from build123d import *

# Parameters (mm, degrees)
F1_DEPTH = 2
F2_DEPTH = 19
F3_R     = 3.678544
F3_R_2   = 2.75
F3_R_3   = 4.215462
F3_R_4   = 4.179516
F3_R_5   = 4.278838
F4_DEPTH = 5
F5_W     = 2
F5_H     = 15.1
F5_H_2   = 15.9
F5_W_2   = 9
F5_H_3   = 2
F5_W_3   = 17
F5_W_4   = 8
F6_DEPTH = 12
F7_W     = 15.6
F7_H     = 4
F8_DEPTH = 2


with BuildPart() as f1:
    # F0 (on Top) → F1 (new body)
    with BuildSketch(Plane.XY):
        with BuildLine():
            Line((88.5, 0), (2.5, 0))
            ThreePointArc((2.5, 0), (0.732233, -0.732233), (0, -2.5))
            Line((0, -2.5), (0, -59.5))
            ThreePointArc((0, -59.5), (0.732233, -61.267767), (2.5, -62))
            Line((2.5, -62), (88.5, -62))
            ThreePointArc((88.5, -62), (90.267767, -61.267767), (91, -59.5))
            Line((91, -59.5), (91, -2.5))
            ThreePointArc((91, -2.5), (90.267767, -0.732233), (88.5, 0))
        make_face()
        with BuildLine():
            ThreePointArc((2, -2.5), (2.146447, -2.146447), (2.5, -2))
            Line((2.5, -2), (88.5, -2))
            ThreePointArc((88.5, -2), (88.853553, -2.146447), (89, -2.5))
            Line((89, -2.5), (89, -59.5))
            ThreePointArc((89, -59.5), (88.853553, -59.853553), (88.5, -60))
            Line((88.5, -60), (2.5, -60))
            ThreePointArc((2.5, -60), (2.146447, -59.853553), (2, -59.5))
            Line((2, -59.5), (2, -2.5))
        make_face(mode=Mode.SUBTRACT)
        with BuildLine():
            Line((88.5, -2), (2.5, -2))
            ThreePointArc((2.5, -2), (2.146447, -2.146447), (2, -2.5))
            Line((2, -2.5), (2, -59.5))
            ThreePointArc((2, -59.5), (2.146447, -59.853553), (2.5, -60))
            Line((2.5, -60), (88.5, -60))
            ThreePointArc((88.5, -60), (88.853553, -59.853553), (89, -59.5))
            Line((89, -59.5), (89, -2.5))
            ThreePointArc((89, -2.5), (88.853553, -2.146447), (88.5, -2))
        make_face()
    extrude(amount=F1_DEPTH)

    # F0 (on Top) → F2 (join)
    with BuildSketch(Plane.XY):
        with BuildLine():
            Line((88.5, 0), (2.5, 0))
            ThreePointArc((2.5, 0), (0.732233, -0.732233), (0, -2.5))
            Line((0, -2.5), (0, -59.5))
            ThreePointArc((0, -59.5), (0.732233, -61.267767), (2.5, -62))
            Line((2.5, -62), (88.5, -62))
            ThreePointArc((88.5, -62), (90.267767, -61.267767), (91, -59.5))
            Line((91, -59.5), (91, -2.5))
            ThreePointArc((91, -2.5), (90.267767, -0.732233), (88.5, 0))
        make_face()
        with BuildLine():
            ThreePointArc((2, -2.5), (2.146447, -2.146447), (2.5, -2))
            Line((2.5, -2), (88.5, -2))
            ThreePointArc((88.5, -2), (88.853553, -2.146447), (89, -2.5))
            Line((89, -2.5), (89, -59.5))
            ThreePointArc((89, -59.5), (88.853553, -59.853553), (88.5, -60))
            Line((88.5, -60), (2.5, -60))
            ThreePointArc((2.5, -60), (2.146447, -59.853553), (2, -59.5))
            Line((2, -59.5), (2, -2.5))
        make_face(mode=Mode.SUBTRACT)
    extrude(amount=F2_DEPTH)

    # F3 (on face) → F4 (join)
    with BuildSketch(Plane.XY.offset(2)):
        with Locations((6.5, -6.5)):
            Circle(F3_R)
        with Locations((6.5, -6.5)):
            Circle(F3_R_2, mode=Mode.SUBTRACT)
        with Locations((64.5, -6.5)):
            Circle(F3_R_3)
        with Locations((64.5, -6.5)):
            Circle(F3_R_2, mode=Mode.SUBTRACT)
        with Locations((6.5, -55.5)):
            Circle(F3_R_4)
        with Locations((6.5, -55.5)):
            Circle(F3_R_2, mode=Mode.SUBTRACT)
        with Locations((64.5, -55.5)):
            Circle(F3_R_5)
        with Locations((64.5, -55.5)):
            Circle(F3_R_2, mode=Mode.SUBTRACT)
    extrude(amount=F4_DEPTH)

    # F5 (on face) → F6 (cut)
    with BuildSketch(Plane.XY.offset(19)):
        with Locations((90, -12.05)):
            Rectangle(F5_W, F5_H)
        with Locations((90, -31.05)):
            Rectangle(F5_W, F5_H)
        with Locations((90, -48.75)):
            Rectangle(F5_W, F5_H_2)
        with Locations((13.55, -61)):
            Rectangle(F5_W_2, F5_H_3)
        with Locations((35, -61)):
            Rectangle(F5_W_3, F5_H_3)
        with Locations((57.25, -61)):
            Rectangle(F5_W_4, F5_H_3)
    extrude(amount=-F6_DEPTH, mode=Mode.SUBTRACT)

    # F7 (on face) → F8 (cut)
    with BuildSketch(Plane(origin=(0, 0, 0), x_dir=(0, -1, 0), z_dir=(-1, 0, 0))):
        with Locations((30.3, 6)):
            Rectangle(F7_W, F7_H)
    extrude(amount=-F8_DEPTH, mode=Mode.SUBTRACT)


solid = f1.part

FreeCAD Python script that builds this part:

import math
import FreeCAD as App
import Part
import Sketcher
Q = App.Units.Quantity

doc = App.newDocument("Part")
body = doc.addObject("PartDesign::Body", "Body")

# Sketch on XY plane
sketch1 = body.newObject("Sketcher::SketchObject", "Sketch")
sketch1.AttachmentSupport = (doc.getObject("XY_Plane"), [""])
sketch1.MapMode = "FlatFace"
sketch1.addGeometry([
    Part.LineSegment(App.Vector(88.5, 0, 0), App.Vector(2.5, 0, 0)),  # 0
    Part.ArcOfCircle(Part.Circle(App.Vector(2.5, -2.5, 0), App.Vector(0, 0, 1), 2.5), math.radians(89.999996), math.radians(180.000004)),  # 1
    Part.LineSegment(App.Vector(0, -2.5, 0), App.Vector(0, -59.5, 0)),  # 2
    Part.ArcOfCircle(Part.Circle(App.Vector(2.5, -59.5, 0), App.Vector(0, 0, 1), 2.5), math.radians(179.999996), math.radians(270.000004)),  # 3
    Part.LineSegment(App.Vector(2.5, -62, 0), App.Vector(88.5, -62, 0)),  # 4
    Part.ArcOfCircle(Part.Circle(App.Vector(88.5, -59.5, 0), App.Vector(0, 0, 1), 2.5), math.radians(-90.000004), math.radians(0.000004)),  # 5
    Part.LineSegment(App.Vector(91, -59.5, 0), App.Vector(91, -2.5, 0)),  # 6
    Part.ArcOfCircle(Part.Circle(App.Vector(88.5, -2.5, 0), App.Vector(0, 0, 1), 2.5), math.radians(-0.000004), math.radians(90.000004)),  # 7
], False)
sketch1.addConstraint([
    Sketcher.Constraint("Tangent", 0, 2, 1, 1),
    Sketcher.Constraint("Tangent", 1, 2, 2, 1),
    Sketcher.Constraint("Tangent", 2, 2, 3, 1),
    Sketcher.Constraint("Tangent", 3, 2, 4, 1),
    Sketcher.Constraint("Tangent", 4, 2, 5, 1),
    Sketcher.Constraint("Tangent", 5, 2, 6, 1),
    Sketcher.Constraint("Tangent", 6, 2, 7, 1),
    Sketcher.Constraint("Tangent", 7, 2, 0, 1),
    Sketcher.Constraint("Horizontal", 0),
    Sketcher.Constraint("Vertical", 2),
    Sketcher.Constraint("Horizontal", 4),
    Sketcher.Constraint("Vertical", 6),
    Sketcher.Constraint("Equal", 1, 3),
    Sketcher.Constraint("Equal", 3, 5),
    Sketcher.Constraint("Equal", 5, 7),
    Sketcher.Constraint("PointOnObject", 0, 2, -1),
    Sketcher.Constraint("PointOnObject", 1, 2, -2),
    Sketcher.Constraint("Radius", 1, Q("2.5 mm")),
    Sketcher.Constraint("DistanceX", 0, 2, 0, 1, Q("86 mm")),
    Sketcher.Constraint("DistanceY", 2, 2, 2, 1, Q("57 mm")),
])
pad1 = body.newObject("PartDesign::Pad", "Pad")
pad1.Profile = sketch1
pad1.Length = 2

# Sketch on XY plane
sketch2 = body.newObject("Sketcher::SketchObject", "Sketch001")
sketch2.AttachmentSupport = (doc.getObject("XY_Plane"), [""])
sketch2.MapMode = "FlatFace"
sketch2.addGeometry([
    Part.LineSegment(App.Vector(88.5, 0, 0), App.Vector(2.5, 0, 0)),  # 0
    Part.ArcOfCircle(Part.Circle(App.Vector(2.5, -2.5, 0), App.Vector(0, 0, 1), 2.5), math.radians(89.999996), math.radians(180.000004)),  # 1
    Part.LineSegment(App.Vector(0, -2.5, 0), App.Vector(0, -59.5, 0)),  # 2
    Part.ArcOfCircle(Part.Circle(App.Vector(2.5, -59.5, 0), App.Vector(0, 0, 1), 2.5), math.radians(179.999996), math.radians(270.000004)),  # 3
    Part.LineSegment(App.Vector(2.5, -62, 0), App.Vector(88.5, -62, 0)),  # 4
    Part.ArcOfCircle(Part.Circle(App.Vector(88.5, -59.5, 0), App.Vector(0, 0, 1), 2.5), math.radians(-90.000004), math.radians(0.000004)),  # 5
    Part.LineSegment(App.Vector(91, -59.5, 0), App.Vector(91, -2.5, 0)),  # 6
    Part.ArcOfCircle(Part.Circle(App.Vector(88.5, -2.5, 0), App.Vector(0, 0, 1), 2.5), math.radians(-0.000004), math.radians(90.000004)),  # 7
    Part.LineSegment(App.Vector(2, -59.5, 0), App.Vector(2, -2.5, 0)),  # 8
    Part.ArcOfCircle(Part.Circle(App.Vector(2.500001, -2.500001, 0), App.Vector(0, 0, 1), 0.500001), math.radians(90.000153), math.radians(179.999847)),  # 9
    Part.LineSegment(App.Vector(2.5, -2, 0), App.Vector(88.5, -2, 0)),  # 10
    Part.ArcOfCircle(Part.Circle(App.Vector(88.499999, -2.500001, 0), App.Vector(0, 0, 1), 0.500001), math.radians(0.000153), math.radians(89.999847)),  # 11
    Part.LineSegment(App.Vector(89, -2.5, 0), App.Vector(89, -59.5, 0)),  # 12
    Part.ArcOfCircle(Part.Circle(App.Vector(88.499999, -59.499999, 0), App.Vector(0, 0, 1), 0.500001), math.radians(-89.999847), math.radians(-0.000153)),  # 13
    Part.LineSegment(App.Vector(88.5, -60, 0), App.Vector(2.5, -60, 0)),  # 14
    Part.ArcOfCircle(Part.Circle(App.Vector(2.500001, -59.499999, 0), App.Vector(0, 0, 1), 0.500001), math.radians(-179.999847), math.radians(-90.000153)),  # 15
], False)
sketch2.addConstraint([
    Sketcher.Constraint("Tangent", 0, 2, 1, 1),
    Sketcher.Constraint("Tangent", 1, 2, 2, 1),
    Sketcher.Constraint("Tangent", 2, 2, 3, 1),
    Sketcher.Constraint("Tangent", 3, 2, 4, 1),
    Sketcher.Constraint("Tangent", 4, 2, 5, 1),
    Sketcher.Constraint("Tangent", 5, 2, 6, 1),
    Sketcher.Constraint("Tangent", 6, 2, 7, 1),
    Sketcher.Constraint("Tangent", 7, 2, 0, 1),
    Sketcher.Constraint("Coincident", 8, 2, 9, 2),
    Sketcher.Constraint("Coincident", 9, 1, 10, 1),
    Sketcher.Constraint("Coincident", 10, 2, 11, 2),
    Sketcher.Constraint("Coincident", 11, 1, 12, 1),
    Sketcher.Constraint("Coincident", 12, 2, 13, 2),
    Sketcher.Constraint("Coincident", 13, 1, 14, 1),
    Sketcher.Constraint("Coincident", 14, 2, 15, 2),
    Sketcher.Constraint("Coincident", 15, 1, 8, 1),
    Sketcher.Constraint("Horizontal", 0),
    Sketcher.Constraint("Vertical", 2),
    Sketcher.Constraint("Horizontal", 4),
    Sketcher.Constraint("Vertical", 6),
    Sketcher.Constraint("Vertical", 8),
    Sketcher.Constraint("Horizontal", 10),
    Sketcher.Constraint("Vertical", 12),
    Sketcher.Constraint("Horizontal", 14),
    Sketcher.Constraint("Coincident", 9, 3, 1, 3),
    Sketcher.Constraint("Coincident", 11, 3, 7, 3),
    Sketcher.Constraint("Coincident", 13, 3, 5, 3),
    Sketcher.Constraint("Equal", 1, 3),
    Sketcher.Constraint("Equal", 3, 5),
    Sketcher.Constraint("Equal", 5, 7),
    Sketcher.Constraint("Equal", 13, 15),
    Sketcher.Constraint("PointOnObject", 0, 2, -1),
    Sketcher.Constraint("PointOnObject", 1, 2, -2),
    Sketcher.Constraint("Horizontal", 6, 2, 8, 2),
    Sketcher.Constraint("Horizontal", 8, 2, 11, 1),
    Sketcher.Constraint("Horizontal", 5, 2, 12, 2),
    Sketcher.Constraint("Horizontal", 12, 2, 15, 1),
    Sketcher.Constraint("Vertical", 3, 2, 9, 1),
    Sketcher.Constraint("Vertical", 7, 2, 10, 2),
    Sketcher.Constraint("Vertical", 10, 2, 13, 1),
    Sketcher.Constraint("Vertical", 9, 1, 14, 2),
    Sketcher.Constraint("Radius", 1, Q("2.5 mm")),
    Sketcher.Constraint("Radius", 9, Q("0.500001 mm")),
    Sketcher.Constraint("DistanceX", 0, 2, 0, 1, Q("86 mm")),
    Sketcher.Constraint("DistanceY", 2, 2, 2, 1, Q("57 mm")),
])
pad2 = body.newObject("PartDesign::Pad", "Pad001")
pad2.Profile = sketch2
pad2.Length = 19

# Sketch on XY plane
sketch3 = body.newObject("Sketcher::SketchObject", "Sketch002")
sketch3.AttachmentSupport = (doc.getObject("XY_Plane"), [""])
sketch3.MapMode = "FlatFace"
sketch3.AttachmentOffset = App.Placement(App.Vector(0, 0, 2), App.Rotation())
sketch3.addGeometry([
    Part.Circle(App.Vector(6.5, -6.5, 0), App.Vector(0, 0, 1), 3.678544),  # 0
    Part.Circle(App.Vector(6.5, -6.5, 0), App.Vector(0, 0, 1), 2.75),  # 1
    Part.Circle(App.Vector(64.5, -6.5, 0), App.Vector(0, 0, 1), 4.215462),  # 2
    Part.Circle(App.Vector(64.5, -6.5, 0), App.Vector(0, 0, 1), 2.75),  # 3
    Part.Circle(App.Vector(6.5, -55.5, 0), App.Vector(0, 0, 1), 4.179516),  # 4
    Part.Circle(App.Vector(6.5, -55.5, 0), App.Vector(0, 0, 1), 2.75),  # 5
    Part.Circle(App.Vector(64.5, -55.5, 0), App.Vector(0, 0, 1), 4.278838),  # 6
    Part.Circle(App.Vector(64.5, -55.5, 0), App.Vector(0, 0, 1), 2.75),  # 7
], False)
sketch3.addConstraint([
    Sketcher.Constraint("Coincident", 1, 3, 0, 3),
    Sketcher.Constraint("Coincident", 3, 3, 2, 3),
    Sketcher.Constraint("Coincident", 5, 3, 4, 3),
    Sketcher.Constraint("Coincident", 7, 3, 6, 3),
    Sketcher.Constraint("Equal", 1, 3),
    Sketcher.Constraint("Equal", 3, 5),
    Sketcher.Constraint("Equal", 5, 7),
    Sketcher.Constraint("Horizontal", 1, 3, 2, 3),
    Sketcher.Constraint("Horizontal", 5, 3, 6, 3),
    Sketcher.Constraint("Vertical", 1, 3, 4, 3),
    Sketcher.Constraint("Vertical", 3, 3, 6, 3),
    Sketcher.Constraint("Diameter", 1, Q("5.5 mm")),
    Sketcher.Constraint("DistanceX", 0, 3, 2, 3, Q("58 mm")),
    Sketcher.Constraint("DistanceY", 4, 3, 0, 3, Q("49 mm")),
    Sketcher.Constraint("DistanceX", -1, 1, 0, 3, Q("6.5 mm")),
    Sketcher.Constraint("DistanceY", 0, 3, -1, 1, Q("6.5 mm")),
    Sketcher.Constraint("Diameter", 4, Q("8.359032 mm")),
    Sketcher.Constraint("Diameter", 0, Q("7.357088 mm")),
    Sketcher.Constraint("Diameter", 2, Q("8.430924 mm")),
    Sketcher.Constraint("Diameter", 6, Q("8.557676 mm")),
])
pad3 = body.newObject("PartDesign::Pad", "Pad002")
pad3.Profile = sketch3
pad3.Length = 5

# Sketch on XY plane
sketch4 = body.newObject("Sketcher::SketchObject", "Sketch003")
sketch4.AttachmentSupport = (doc.getObject("XY_Plane"), [""])
sketch4.MapMode = "FlatFace"
sketch4.AttachmentOffset = App.Placement(App.Vector(0, 0, 19), App.Rotation())
sketch4.addGeometry([
    Part.LineSegment(App.Vector(89, -4.5, 0), App.Vector(89, -19.6, 0)),  # 0
    Part.LineSegment(App.Vector(89, -19.6, 0), App.Vector(91, -19.6, 0)),  # 1
    Part.LineSegment(App.Vector(91, -19.6, 0), App.Vector(91, -4.5, 0)),  # 2
    Part.LineSegment(App.Vector(91, -4.5, 0), App.Vector(89, -4.5, 0)),  # 3
    Part.LineSegment(App.Vector(89, -23.5, 0), App.Vector(89, -38.6, 0)),  # 4
    Part.LineSegment(App.Vector(89, -38.6, 0), App.Vector(91, -38.6, 0)),  # 5
    Part.LineSegment(App.Vector(91, -38.6, 0), App.Vector(91, -23.5, 0)),  # 6
    Part.LineSegment(App.Vector(91, -23.5, 0), App.Vector(89, -23.5, 0)),  # 7
    Part.LineSegment(App.Vector(89, -40.8, 0), App.Vector(89, -56.7, 0)),  # 8
    Part.LineSegment(App.Vector(89, -56.7, 0), App.Vector(91, -56.7, 0)),  # 9
    Part.LineSegment(App.Vector(91, -56.7, 0), App.Vector(91, -40.8, 0)),  # 10
    Part.LineSegment(App.Vector(91, -40.8, 0), App.Vector(89, -40.8, 0)),  # 11
    Part.LineSegment(App.Vector(9.05, -60, 0), App.Vector(9.05, -62, 0)),  # 12
    Part.LineSegment(App.Vector(9.05, -62, 0), App.Vector(18.05, -62, 0)),  # 13
    Part.LineSegment(App.Vector(18.05, -62, 0), App.Vector(18.05, -60, 0)),  # 14
    Part.LineSegment(App.Vector(18.05, -60, 0), App.Vector(9.05, -60, 0)),  # 15
    Part.LineSegment(App.Vector(26.5, -60, 0), App.Vector(26.5, -62, 0)),  # 16
    Part.LineSegment(App.Vector(26.5, -62, 0), App.Vector(43.5, -62, 0)),  # 17
    Part.LineSegment(App.Vector(43.5, -62, 0), App.Vector(43.5, -60, 0)),  # 18
    Part.LineSegment(App.Vector(43.5, -60, 0), App.Vector(26.5, -60, 0)),  # 19
    Part.LineSegment(App.Vector(53.25, -60, 0), App.Vector(53.25, -62, 0)),  # 20
    Part.LineSegment(App.Vector(53.25, -62, 0), App.Vector(61.25, -62, 0)),  # 21
    Part.LineSegment(App.Vector(61.25, -62, 0), App.Vector(61.25, -60, 0)),  # 22
    Part.LineSegment(App.Vector(61.25, -60, 0), App.Vector(53.25, -60, 0)),  # 23
], False)
sketch4.addConstraint([
    Sketcher.Constraint("Coincident", 0, 2, 1, 1),
    Sketcher.Constraint("Coincident", 1, 2, 2, 1),
    Sketcher.Constraint("Coincident", 2, 2, 3, 1),
    Sketcher.Constraint("Coincident", 3, 2, 0, 1),
    Sketcher.Constraint("Coincident", 4, 2, 5, 1),
    Sketcher.Constraint("Coincident", 5, 2, 6, 1),
    Sketcher.Constraint("Coincident", 6, 2, 7, 1),
    Sketcher.Constraint("Coincident", 7, 2, 4, 1),
    Sketcher.Constraint("Coincident", 8, 2, 9, 1),
    Sketcher.Constraint("Coincident", 9, 2, 10, 1),
    Sketcher.Constraint("Coincident", 10, 2, 11, 1),
    Sketcher.Constraint("Coincident", 11, 2, 8, 1),
    Sketcher.Constraint("Coincident", 12, 2, 13, 1),
    Sketcher.Constraint("Coincident", 13, 2, 14, 1),
    Sketcher.Constraint("Coincident", 14, 2, 15, 1),
    Sketcher.Constraint("Coincident", 15, 2, 12, 1),
    Sketcher.Constraint("Coincident", 16, 2, 17, 1),
    Sketcher.Constraint("Coincident", 17, 2, 18, 1),
    Sketcher.Constraint("Coincident", 18, 2, 19, 1),
    Sketcher.Constraint("Coincident", 19, 2, 16, 1),
    Sketcher.Constraint("Coincident", 20, 2, 21, 1),
    Sketcher.Constraint("Coincident", 21, 2, 22, 1),
    Sketcher.Constraint("Coincident", 22, 2, 23, 1),
    Sketcher.Constraint("Coincident", 23, 2, 20, 1),
    Sketcher.Constraint("Vertical", 0),
    Sketcher.Constraint("Horizontal", 1),
    Sketcher.Constraint("Vertical", 2),
    Sketcher.Constraint("Horizontal", 3),
    Sketcher.Constraint("Vertical", 4),
    Sketcher.Constraint("Horizontal", 5),
    Sketcher.Constraint("Vertical", 6),
    Sketcher.Constraint("Horizontal", 7),
    Sketcher.Constraint("Vertical", 8),
    Sketcher.Constraint("Horizontal", 9),
    Sketcher.Constraint("Vertical", 10),
    Sketcher.Constraint("Horizontal", 11),
    Sketcher.Constraint("Vertical", 12),
    Sketcher.Constraint("Horizontal", 13),
    Sketcher.Constraint("Vertical", 14),
    Sketcher.Constraint("Horizontal", 15),
    Sketcher.Constraint("Vertical", 16),
    Sketcher.Constraint("Horizontal", 17),
    Sketcher.Constraint("Vertical", 18),
    Sketcher.Constraint("Horizontal", 19),
    Sketcher.Constraint("Vertical", 20),
    Sketcher.Constraint("Horizontal", 21),
    Sketcher.Constraint("Vertical", 22),
    Sketcher.Constraint("Horizontal", 23),
    Sketcher.Constraint("Horizontal", 13, 2, 16, 2),
    Sketcher.Constraint("Horizontal", 15, 2, 18, 2),
    Sketcher.Constraint("Horizontal", 17, 2, 20, 2),
    Sketcher.Constraint("Horizontal", 19, 2, 22, 2),
    Sketcher.Constraint("Vertical", 3, 2, 4, 2),
    Sketcher.Constraint("Vertical", 2, 2, 5, 2),
    Sketcher.Constraint("Vertical", 7, 2, 8, 2),
    Sketcher.Constraint("Vertical", 6, 2, 9, 2),
    Sketcher.Constraint("Equal", 2, 4),
    Sketcher.Constraint("Equal", 11, 12),
    Sketcher.Constraint("DistanceX", 1, 1, 1, 2, Q("2 mm")),
    Sketcher.Constraint("DistanceX", 13, 1, 13, 2, Q("9 mm")),
    Sketcher.Constraint("DistanceX", 17, 1, 17, 2, Q("17 mm")),
    Sketcher.Constraint("DistanceX", 21, 1, 21, 2, Q("8 mm")),
    Sketcher.Constraint("DistanceY", 0, 2, 0, 1, Q("15.1 mm")),
    Sketcher.Constraint("DistanceY", 8, 2, 8, 1, Q("15.9 mm")),
    Sketcher.Constraint("DistanceX", -1, 1, 0, 2, Q("89 mm")),
    Sketcher.Constraint("DistanceY", 12, 2, -1, 1, Q("62 mm")),
    Sketcher.Constraint("DistanceY", 4, 2, 0, 2, Q("19 mm")),
    Sketcher.Constraint("DistanceY", 0, 2, -1, 1, Q("19.6 mm")),
    Sketcher.Constraint("DistanceY", 8, 2, -1, 1, Q("56.7 mm")),
    Sketcher.Constraint("DistanceX", -1, 1, 16, 2, Q("26.5 mm")),
    Sketcher.Constraint("DistanceX", 13, 2, 20, 2, Q("35.2 mm")),
    Sketcher.Constraint("DistanceX", -1, 1, 12, 2, Q("9.05 mm")),
])
pocket1 = body.newObject("PartDesign::Pocket", "Pocket")
pocket1.Profile = sketch4
pocket1.Length = 12

# Sketch on YZ plane
sketch5 = body.newObject("Sketcher::SketchObject", "Sketch004")
sketch5.AttachmentSupport = (doc.getObject("YZ_Plane"), [""])
sketch5.MapMode = "FlatFace"
sketch5.addGeometry([
    Part.LineSegment(App.Vector(-22.5, 8, 0), App.Vector(-22.5, 4, 0)),
    Part.LineSegment(App.Vector(-22.5, 4, 0), App.Vector(-38.1, 4, 0)),
    Part.LineSegment(App.Vector(-38.1, 4, 0), App.Vector(-38.1, 8, 0)),
    Part.LineSegment(App.Vector(-38.1, 8, 0), App.Vector(-22.5, 8, 0)),
], False)
sketch5.addConstraint([
    Sketcher.Constraint("Coincident", 0, 2, 1, 1),
    Sketcher.Constraint("Coincident", 1, 2, 2, 1),
    Sketcher.Constraint("Coincident", 2, 2, 3, 1),
    Sketcher.Constraint("Coincident", 3, 2, 0, 1),
    Sketcher.Constraint("Vertical", 0),
    Sketcher.Constraint("Horizontal", 1),
    Sketcher.Constraint("Vertical", 2),
    Sketcher.Constraint("Horizontal", 3),
    Sketcher.Constraint("DistanceY", 0, 2, 0, 1, Q("4 mm")),
    Sketcher.Constraint("DistanceX", 1, 2, 1, 1, Q("15.6 mm")),
    Sketcher.Constraint("DistanceY", -1, 1, 0, 2, Q("4 mm")),
    Sketcher.Constraint("DistanceX", 0, 2, -1, 1, Q("22.5 mm")),
])
pocket2 = body.newObject("PartDesign::Pocket", "Pocket001")
pocket2.Profile = sketch5
pocket2.Length = 2
pocket2.Reversed = True

doc.recompute()
